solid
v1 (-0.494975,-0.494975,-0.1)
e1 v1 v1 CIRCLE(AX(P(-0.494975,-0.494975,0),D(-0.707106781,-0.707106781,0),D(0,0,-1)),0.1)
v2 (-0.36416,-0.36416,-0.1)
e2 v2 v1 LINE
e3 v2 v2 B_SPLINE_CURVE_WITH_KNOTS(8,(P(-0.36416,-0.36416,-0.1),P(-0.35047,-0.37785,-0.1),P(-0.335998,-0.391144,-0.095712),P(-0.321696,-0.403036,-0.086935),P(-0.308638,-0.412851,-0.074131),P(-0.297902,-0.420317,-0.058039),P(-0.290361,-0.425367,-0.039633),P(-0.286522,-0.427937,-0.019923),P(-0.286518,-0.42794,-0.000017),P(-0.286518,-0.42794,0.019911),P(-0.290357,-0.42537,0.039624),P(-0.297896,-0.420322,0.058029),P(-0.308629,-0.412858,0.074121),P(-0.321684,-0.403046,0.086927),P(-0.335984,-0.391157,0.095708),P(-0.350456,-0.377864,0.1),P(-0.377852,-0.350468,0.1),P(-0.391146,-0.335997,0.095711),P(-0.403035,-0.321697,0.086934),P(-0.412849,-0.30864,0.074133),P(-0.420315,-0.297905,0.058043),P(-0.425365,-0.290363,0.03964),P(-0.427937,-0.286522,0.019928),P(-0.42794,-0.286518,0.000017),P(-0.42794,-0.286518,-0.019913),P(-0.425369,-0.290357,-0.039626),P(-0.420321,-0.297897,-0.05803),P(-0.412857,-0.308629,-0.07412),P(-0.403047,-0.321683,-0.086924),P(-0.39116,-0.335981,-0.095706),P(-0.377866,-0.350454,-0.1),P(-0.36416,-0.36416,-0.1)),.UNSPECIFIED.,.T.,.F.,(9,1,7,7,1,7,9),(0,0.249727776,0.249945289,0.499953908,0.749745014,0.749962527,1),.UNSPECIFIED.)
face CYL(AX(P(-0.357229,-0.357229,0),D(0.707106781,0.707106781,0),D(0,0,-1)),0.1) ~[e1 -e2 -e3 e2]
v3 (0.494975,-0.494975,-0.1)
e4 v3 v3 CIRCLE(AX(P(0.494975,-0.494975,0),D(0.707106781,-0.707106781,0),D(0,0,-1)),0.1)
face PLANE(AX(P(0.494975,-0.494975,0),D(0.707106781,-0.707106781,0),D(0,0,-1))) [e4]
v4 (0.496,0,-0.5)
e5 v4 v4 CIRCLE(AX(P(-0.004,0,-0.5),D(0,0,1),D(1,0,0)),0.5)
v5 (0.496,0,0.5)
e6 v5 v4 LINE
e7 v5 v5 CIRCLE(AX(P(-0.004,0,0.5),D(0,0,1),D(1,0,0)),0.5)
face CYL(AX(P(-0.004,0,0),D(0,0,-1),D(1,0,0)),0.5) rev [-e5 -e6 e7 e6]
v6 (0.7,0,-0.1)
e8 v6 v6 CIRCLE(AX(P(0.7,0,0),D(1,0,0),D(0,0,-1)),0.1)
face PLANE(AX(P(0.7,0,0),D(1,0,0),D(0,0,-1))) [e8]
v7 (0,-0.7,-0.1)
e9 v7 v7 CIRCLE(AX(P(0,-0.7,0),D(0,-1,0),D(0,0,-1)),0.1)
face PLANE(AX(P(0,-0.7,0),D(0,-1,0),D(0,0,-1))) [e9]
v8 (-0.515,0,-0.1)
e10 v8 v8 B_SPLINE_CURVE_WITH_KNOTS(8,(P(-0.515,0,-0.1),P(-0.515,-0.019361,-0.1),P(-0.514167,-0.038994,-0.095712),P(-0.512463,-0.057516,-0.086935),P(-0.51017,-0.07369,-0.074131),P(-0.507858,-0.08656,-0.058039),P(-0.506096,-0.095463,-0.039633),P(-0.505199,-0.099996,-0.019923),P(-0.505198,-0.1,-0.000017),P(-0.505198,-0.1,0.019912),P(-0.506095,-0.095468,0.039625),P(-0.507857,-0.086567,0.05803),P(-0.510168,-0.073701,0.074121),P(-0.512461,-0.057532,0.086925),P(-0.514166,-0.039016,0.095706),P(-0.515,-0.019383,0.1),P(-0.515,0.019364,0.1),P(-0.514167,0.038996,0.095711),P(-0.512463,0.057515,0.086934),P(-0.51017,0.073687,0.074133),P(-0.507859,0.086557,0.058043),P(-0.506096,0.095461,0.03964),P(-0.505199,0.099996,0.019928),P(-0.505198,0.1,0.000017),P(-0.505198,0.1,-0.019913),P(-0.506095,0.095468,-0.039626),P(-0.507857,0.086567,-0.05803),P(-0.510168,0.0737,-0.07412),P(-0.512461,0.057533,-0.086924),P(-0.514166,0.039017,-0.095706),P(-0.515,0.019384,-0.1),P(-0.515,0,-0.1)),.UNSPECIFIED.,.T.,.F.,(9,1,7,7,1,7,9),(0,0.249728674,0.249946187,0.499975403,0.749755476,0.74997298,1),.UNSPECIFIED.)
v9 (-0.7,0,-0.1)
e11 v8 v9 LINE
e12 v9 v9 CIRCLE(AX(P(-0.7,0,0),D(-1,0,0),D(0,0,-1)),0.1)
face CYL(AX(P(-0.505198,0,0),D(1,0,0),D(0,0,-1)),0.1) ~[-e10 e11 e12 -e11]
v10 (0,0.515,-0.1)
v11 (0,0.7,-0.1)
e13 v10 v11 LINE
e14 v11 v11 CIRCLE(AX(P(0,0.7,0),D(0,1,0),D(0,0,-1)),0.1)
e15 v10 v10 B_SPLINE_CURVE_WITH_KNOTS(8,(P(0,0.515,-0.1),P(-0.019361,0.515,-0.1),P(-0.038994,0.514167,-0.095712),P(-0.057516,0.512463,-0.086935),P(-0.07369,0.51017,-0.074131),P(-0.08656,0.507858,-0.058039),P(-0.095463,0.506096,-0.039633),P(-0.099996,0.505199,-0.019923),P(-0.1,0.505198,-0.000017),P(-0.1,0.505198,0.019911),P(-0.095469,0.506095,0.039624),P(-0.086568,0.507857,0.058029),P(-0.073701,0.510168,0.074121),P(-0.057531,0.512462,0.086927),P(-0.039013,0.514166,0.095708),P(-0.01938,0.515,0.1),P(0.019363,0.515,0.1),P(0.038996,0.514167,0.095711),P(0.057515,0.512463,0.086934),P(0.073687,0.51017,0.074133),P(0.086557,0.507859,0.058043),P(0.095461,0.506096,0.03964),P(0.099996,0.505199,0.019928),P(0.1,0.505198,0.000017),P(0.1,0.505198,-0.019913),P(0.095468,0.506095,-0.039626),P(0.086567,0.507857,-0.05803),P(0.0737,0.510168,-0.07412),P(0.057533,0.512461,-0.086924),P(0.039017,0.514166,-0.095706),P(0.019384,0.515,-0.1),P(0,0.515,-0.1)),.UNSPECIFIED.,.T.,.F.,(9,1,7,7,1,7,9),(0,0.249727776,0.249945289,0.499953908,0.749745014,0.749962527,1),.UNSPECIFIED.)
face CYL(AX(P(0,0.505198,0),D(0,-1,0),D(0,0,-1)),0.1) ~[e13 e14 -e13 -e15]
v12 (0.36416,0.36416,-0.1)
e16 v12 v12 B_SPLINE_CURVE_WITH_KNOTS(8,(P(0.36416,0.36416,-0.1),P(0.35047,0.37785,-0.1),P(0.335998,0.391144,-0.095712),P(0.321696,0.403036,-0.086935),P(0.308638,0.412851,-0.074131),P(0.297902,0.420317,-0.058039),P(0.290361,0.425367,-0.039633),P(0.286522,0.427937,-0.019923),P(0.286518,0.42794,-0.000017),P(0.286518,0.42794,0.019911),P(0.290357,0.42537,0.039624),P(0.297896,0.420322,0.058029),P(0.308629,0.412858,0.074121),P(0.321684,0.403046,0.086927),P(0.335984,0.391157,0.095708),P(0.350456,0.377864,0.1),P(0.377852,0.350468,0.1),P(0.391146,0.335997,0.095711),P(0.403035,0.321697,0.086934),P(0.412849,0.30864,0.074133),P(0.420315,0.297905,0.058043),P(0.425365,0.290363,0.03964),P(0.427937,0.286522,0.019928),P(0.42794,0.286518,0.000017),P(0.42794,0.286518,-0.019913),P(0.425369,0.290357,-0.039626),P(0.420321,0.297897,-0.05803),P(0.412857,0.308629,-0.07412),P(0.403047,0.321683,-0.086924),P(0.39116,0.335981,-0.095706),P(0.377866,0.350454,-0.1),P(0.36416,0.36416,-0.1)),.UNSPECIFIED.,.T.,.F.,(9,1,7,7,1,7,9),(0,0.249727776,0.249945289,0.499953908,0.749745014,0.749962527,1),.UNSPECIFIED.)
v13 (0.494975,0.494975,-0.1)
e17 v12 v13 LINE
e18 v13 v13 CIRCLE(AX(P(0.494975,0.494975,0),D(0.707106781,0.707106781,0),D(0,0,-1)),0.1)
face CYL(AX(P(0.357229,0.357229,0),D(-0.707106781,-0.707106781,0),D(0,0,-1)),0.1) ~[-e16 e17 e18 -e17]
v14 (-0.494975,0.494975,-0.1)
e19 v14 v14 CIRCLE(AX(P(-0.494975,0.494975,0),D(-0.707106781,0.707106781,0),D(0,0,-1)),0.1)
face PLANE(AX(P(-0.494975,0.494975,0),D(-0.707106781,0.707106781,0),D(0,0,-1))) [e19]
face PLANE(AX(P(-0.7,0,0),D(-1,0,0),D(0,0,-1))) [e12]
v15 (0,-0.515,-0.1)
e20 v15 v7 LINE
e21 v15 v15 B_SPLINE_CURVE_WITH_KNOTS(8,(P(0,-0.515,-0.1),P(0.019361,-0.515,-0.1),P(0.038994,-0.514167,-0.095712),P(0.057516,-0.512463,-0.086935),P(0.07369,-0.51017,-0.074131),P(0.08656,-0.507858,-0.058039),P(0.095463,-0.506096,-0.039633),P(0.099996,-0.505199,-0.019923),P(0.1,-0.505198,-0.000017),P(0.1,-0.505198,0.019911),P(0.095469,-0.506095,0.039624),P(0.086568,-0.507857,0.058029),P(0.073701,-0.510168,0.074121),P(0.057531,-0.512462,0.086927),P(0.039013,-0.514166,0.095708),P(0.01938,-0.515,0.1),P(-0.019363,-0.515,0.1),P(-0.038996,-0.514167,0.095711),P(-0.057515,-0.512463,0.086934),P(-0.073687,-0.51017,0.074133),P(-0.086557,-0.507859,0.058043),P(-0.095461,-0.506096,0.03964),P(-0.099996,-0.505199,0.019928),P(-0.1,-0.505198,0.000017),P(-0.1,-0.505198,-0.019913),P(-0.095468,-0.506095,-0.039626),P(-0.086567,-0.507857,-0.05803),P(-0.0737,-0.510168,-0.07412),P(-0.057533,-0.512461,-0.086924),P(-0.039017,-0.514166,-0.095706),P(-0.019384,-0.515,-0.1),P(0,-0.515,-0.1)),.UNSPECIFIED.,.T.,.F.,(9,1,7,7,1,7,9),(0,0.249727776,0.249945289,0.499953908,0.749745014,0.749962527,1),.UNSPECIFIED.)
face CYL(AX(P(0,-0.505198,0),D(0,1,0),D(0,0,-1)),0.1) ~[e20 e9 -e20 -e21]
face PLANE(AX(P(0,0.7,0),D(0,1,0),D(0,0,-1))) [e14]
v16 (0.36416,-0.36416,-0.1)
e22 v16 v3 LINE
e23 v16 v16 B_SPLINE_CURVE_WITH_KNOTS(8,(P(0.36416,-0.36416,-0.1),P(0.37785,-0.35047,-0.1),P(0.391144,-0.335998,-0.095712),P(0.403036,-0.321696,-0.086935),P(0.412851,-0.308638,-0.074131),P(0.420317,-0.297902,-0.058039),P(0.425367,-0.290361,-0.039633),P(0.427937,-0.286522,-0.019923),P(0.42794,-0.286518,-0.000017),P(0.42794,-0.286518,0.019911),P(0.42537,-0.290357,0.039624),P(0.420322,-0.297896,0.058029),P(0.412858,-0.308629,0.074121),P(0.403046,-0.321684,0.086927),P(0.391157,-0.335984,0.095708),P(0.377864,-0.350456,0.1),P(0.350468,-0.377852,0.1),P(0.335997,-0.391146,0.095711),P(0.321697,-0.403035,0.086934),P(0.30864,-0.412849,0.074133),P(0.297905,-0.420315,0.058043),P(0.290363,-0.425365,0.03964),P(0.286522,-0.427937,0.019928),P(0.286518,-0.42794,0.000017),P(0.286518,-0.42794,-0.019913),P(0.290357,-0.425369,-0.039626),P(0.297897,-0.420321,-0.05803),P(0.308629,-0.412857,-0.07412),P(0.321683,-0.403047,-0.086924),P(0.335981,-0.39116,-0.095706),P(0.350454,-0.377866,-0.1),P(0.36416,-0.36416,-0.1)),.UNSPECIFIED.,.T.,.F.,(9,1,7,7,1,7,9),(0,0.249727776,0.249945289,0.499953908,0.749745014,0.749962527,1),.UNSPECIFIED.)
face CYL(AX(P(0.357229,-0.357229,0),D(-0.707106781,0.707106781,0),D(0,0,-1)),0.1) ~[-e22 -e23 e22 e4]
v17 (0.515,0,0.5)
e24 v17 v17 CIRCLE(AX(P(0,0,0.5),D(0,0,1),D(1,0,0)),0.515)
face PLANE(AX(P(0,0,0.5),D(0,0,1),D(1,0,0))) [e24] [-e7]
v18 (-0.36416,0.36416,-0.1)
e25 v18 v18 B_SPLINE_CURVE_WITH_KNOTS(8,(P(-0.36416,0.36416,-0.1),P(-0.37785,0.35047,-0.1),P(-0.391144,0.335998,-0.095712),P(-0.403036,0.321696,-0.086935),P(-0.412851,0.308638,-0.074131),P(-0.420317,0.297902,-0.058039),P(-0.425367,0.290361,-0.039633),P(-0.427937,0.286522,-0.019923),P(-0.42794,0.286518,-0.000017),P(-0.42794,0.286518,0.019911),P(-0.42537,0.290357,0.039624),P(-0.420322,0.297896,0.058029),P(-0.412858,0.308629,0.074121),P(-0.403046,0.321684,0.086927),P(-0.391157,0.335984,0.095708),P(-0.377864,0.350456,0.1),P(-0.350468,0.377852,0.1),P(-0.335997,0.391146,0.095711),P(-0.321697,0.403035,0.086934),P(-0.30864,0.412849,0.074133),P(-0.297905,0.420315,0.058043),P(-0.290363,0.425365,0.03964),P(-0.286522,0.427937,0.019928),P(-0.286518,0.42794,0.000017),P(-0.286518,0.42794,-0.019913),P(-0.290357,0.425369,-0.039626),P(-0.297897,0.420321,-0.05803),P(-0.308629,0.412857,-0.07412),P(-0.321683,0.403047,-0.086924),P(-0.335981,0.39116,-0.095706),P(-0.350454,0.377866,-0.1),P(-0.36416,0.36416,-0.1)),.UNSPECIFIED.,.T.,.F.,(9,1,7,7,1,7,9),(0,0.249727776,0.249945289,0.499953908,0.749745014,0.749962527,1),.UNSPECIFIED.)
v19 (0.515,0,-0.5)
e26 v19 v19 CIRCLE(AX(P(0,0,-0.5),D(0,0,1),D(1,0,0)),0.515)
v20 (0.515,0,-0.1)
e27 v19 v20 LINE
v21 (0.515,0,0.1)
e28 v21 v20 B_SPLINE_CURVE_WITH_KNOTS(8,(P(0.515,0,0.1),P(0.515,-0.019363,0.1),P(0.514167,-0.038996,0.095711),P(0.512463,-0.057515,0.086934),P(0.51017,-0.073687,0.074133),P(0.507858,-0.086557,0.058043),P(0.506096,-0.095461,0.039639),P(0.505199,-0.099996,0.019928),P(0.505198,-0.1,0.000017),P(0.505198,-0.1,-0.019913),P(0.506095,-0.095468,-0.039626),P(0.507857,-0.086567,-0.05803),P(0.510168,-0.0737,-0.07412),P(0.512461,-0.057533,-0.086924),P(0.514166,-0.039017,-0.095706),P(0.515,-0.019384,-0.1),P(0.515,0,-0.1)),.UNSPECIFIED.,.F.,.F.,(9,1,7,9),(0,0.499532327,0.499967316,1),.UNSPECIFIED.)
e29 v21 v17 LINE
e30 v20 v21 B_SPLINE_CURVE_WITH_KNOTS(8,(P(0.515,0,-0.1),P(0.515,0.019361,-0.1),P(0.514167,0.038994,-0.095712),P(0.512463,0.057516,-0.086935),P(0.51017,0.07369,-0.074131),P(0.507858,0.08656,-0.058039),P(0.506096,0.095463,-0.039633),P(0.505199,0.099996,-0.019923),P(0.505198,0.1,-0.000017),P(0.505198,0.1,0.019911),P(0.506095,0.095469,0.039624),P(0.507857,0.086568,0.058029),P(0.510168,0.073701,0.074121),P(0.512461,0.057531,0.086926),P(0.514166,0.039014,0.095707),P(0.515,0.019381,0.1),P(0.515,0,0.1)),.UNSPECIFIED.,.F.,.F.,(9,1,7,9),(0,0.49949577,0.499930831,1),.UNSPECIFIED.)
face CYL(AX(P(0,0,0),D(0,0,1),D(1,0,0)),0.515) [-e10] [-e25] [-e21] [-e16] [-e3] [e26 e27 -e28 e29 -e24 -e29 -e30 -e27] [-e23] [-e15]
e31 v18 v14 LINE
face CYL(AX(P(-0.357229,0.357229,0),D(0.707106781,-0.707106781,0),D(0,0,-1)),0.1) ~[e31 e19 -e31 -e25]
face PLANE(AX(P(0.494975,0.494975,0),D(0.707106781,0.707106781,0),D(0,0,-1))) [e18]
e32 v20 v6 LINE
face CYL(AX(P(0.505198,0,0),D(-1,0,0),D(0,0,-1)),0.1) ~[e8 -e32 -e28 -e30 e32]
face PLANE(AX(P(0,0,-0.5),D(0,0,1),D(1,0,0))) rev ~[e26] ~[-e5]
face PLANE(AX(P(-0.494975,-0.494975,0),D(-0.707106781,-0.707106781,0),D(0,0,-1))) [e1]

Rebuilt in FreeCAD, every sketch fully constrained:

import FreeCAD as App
import Part
import Sketcher

V = App.Vector
Q = App.Units.Quantity

doc = App.newDocument("Part")
body = doc.addObject("PartDesign::Body", "Body")

# Sketch on XY plane
sketch1 = body.newObject("Sketcher::SketchObject", "Sketch")
sketch1.AttachmentSupport = (doc.getObject("XY_Plane"), [""])
sketch1.MapMode = "FlatFace"
sketch1.addGeometry(Part.Circle(V(0, 0, 0), V(0, 0, 1), 0.515), False)
sketch1.addGeometry(Part.Circle(V(-0.004, 0, 0), V(0, 0, 1), 0.5), False)
sketch1.addConstraint(Sketcher.Constraint("Coincident", 0, 3, -1, 1))
sketch1.addConstraint(Sketcher.Constraint("PointOnObject", 1, 3, -1))
sketch1.addConstraint(Sketcher.Constraint("Diameter", 1, Q("1 mm")))
sketch1.addConstraint(Sketcher.Constraint("Diameter", 0, Q("1.03 mm")))
sketch1.addConstraint(Sketcher.Constraint("DistanceX", 1, 3, -1, 1, Q("0.004 mm")))
pad1 = body.newObject("PartDesign::Pad", "Pad")
pad1.Profile = sketch1
pad1.Length = 1
pad1.Midplane = True

# Sketch on YZ plane
sketch2 = body.newObject("Sketcher::SketchObject", "Sketch001")
sketch2.AttachmentSupport = (doc.getObject("YZ_Plane"), [""])
sketch2.MapMode = "FlatFace"
sketch2.AttachmentOffset = App.Placement(V(0, 0, 0.505198), App.Rotation())
sketch2.addGeometry(Part.Circle(V(0, 0, 0), V(0, 0, 1), 0.1), False)
sketch2.addConstraint(Sketcher.Constraint("Coincident", 0, 3, -1, 1))
sketch2.addConstraint(Sketcher.Constraint("Diameter", 0, Q("0.2 mm")))
pad2 = body.newObject("PartDesign::Pad", "Pad001")
pad2.Profile = sketch2
pad2.Length = 0.194802
doc.recompute()

polarpattern = body.newObject("PartDesign::PolarPattern", "PolarPattern")
polarpattern.Originals = [pad2]
polarpattern.Axis = (doc.getObject("Z_Axis"), [""])
polarpattern.Angle = 360
polarpattern.Occurrences = 8
body.Tip = polarpattern

doc.recompute()
